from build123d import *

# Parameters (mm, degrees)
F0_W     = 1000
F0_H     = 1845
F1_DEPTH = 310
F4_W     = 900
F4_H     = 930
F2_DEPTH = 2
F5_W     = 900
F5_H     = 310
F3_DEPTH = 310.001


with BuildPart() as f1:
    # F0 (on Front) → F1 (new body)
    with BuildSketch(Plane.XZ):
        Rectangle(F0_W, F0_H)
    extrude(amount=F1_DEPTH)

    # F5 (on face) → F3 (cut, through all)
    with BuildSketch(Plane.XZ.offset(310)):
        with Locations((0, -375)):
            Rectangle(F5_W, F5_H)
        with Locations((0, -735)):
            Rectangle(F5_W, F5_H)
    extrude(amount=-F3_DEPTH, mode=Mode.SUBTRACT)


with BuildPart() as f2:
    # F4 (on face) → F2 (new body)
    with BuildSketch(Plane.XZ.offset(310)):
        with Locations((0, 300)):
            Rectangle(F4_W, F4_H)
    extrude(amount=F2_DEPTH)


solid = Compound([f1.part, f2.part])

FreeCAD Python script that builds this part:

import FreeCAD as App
import Part
import Sketcher
Q = App.Units.Quantity


def add_polygon(sketch, points):
    """Adds a closed chain of lines whose ends are joined by coincident constraints."""
    first, n = sketch.GeometryCount, len(points)
    for a, b in zip(points, points[1:] + points[:1]):
        sketch.addGeometry(Part.LineSegment(App.Vector(*a, 0), App.Vector(*b, 0)), False)
    for i in range(n):
        sketch.addConstraint(Sketcher.Constraint("Coincident", first + i, 2, first + (i + 1) % n, 1))

doc = App.newDocument("Part")
params = doc.addObject("Spreadsheet::Sheet", "Params")
for row, (alias, value) in enumerate([
    ("sketch1_width", "1000 mm"),
    ("sketch1_height", "1845 mm"),
    ("pad1_length", "310 mm"),
    ("sketch2_width", "900 mm"),
    ("sketch2_height", "310 mm"),
    ("sketch3_width", "900 mm"),
    ("sketch3_height", "930 mm"),
    ("pad2_length", "2 mm"),
], start=1):
    params.set(f"A{row}", alias)
    params.set(f"B{row}", "=" + value)
    params.setAlias(f"B{row}", alias)

body = doc.addObject("PartDesign::Body", "Body")

# Sketch on XZ plane
sketch1 = doc.addObject("Sketcher::SketchObject", "Sketch")
body.addObject(sketch1)
sketch1.AttachmentSupport = (doc.XZ_Plane, [""])
sketch1.MapMode = "FlatFace"
add_polygon(sketch1, [(-500, 922), (-500, -922), (500, -922), (500, 922)])  # lines 0-3
sketch1.addConstraint([
    Sketcher.Constraint("Vertical", 0),
    Sketcher.Constraint("Horizontal", 1),
    Sketcher.Constraint("Vertical", 2),
    Sketcher.Constraint("Horizontal", 3),
    Sketcher.Constraint("Symmetric", 0, 2, 2, 2, -1, 1),
    Sketcher.Constraint("DistanceX", 1, 1, 1, 2, Q("1000 mm")),
    Sketcher.Constraint("DistanceY", 0, 2, 0, 1, Q("1845 mm")),
])
sketch1.setExpression("Constraints[9]", "Params.sketch1_width")
sketch1.setExpression("Constraints[10]", "Params.sketch1_height")
pad1 = doc.addObject("PartDesign::Pad", "Pad")
body.addObject(pad1)
pad1.Profile = sketch1
pad1.setExpression("Length", "Params.pad1_length")

# Sketch on XZ plane
sketch2 = doc.addObject("Sketcher::SketchObject", "Sketch001")
body.addObject(sketch2)
sketch2.AttachmentSupport = (doc.XZ_Plane, [""])
sketch2.MapMode = "FlatFace"
sketch2.AttachmentOffset = App.Placement(App.Vector(0, 0, 310), App.Rotation())
add_polygon(sketch2, [(-450, -220), (-450, -530), (450, -530), (450, -220)])  # lines 0-3
add_polygon(sketch2, [(-450, -580), (-450, -890), (450, -890), (450, -580)])  # lines 4-7
sketch2.addConstraint([
    Sketcher.Constraint("Vertical", 0),
    Sketcher.Constraint("Horizontal", 1),
    Sketcher.Constraint("Vertical", 2),
    Sketcher.Constraint("Horizontal", 3),
    Sketcher.Constraint("Vertical", 4),
    Sketcher.Constraint("Horizontal", 5),
    Sketcher.Constraint("Vertical", 6),
    Sketcher.Constraint("Horizontal", 7),
    Sketcher.Constraint("Vertical", 3, 2, 4, 2),
    Sketcher.Constraint("Vertical", 2, 2, 5, 2),
    Sketcher.Constraint("Equal", 2, 4),
    Sketcher.Constraint("DistanceX", 1, 1, 1, 2, Q("900 mm")),
    Sketcher.Constraint("DistanceY", 0, 2, 0, 1, Q("310 mm")),
    Sketcher.Constraint("DistanceX", 0, 2, -1, 1, Q("450 mm")),
    Sketcher.Constraint("DistanceY", 0, 2, -1, 1, Q("530 mm")),
    Sketcher.Constraint("DistanceY", 4, 2, -1, 1, Q("890 mm")),
])
sketch2.setExpression("Constraints[19]", "Params.sketch2_width")
sketch2.setExpression("Constraints[20]", "Params.sketch2_height")
pocket1 = doc.addObject("PartDesign::Pocket", "Pocket")
body.addObject(pocket1)
pocket1.Profile = sketch2
pocket1.Type = "ThroughAll"
body2 = doc.addObject("PartDesign::Body", "Body001")

# Sketch on XZ plane
sketch3 = doc.addObject("Sketcher::SketchObject", "Sketch002")
body2.addObject(sketch3)
sketch3.AttachmentSupport = (doc.getObject("XZ_Plane001"), [""])
sketch3.MapMode = "FlatFace"
sketch3.AttachmentOffset = App.Placement(App.Vector(0, 0, 310), App.Rotation())
add_polygon(sketch3, [(-450, 765), (-450, -165), (450, -165), (450, 765)])  # lines 0-3
sketch3.addConstraint([
    Sketcher.Constraint("Vertical", 0),
    Sketcher.Constraint("Horizontal", 1),
    Sketcher.Constraint("Vertical", 2),
    Sketcher.Constraint("Horizontal", 3),
    Sketcher.Constraint("DistanceX", 1, 1, 1, 2, Q("900 mm")),
    Sketcher.Constraint("DistanceY", 0, 2, 0, 1, Q("930 mm")),
    Sketcher.Constraint("DistanceX", 0, 2, -1, 1, Q("450 mm")),
    Sketcher.Constraint("DistanceY", 0, 2, -1, 1, Q("165 mm")),
])
sketch3.setExpression("Constraints[8]", "Params.sketch3_width")
sketch3.setExpression("Constraints[9]", "Params.sketch3_height")
pad2 = doc.addObject("PartDesign::Pad", "Pad001")
body2.addObject(pad2)
pad2.Profile = sketch3
pad2.setExpression("Length", "Params.pad2_length")

doc.recompute()
